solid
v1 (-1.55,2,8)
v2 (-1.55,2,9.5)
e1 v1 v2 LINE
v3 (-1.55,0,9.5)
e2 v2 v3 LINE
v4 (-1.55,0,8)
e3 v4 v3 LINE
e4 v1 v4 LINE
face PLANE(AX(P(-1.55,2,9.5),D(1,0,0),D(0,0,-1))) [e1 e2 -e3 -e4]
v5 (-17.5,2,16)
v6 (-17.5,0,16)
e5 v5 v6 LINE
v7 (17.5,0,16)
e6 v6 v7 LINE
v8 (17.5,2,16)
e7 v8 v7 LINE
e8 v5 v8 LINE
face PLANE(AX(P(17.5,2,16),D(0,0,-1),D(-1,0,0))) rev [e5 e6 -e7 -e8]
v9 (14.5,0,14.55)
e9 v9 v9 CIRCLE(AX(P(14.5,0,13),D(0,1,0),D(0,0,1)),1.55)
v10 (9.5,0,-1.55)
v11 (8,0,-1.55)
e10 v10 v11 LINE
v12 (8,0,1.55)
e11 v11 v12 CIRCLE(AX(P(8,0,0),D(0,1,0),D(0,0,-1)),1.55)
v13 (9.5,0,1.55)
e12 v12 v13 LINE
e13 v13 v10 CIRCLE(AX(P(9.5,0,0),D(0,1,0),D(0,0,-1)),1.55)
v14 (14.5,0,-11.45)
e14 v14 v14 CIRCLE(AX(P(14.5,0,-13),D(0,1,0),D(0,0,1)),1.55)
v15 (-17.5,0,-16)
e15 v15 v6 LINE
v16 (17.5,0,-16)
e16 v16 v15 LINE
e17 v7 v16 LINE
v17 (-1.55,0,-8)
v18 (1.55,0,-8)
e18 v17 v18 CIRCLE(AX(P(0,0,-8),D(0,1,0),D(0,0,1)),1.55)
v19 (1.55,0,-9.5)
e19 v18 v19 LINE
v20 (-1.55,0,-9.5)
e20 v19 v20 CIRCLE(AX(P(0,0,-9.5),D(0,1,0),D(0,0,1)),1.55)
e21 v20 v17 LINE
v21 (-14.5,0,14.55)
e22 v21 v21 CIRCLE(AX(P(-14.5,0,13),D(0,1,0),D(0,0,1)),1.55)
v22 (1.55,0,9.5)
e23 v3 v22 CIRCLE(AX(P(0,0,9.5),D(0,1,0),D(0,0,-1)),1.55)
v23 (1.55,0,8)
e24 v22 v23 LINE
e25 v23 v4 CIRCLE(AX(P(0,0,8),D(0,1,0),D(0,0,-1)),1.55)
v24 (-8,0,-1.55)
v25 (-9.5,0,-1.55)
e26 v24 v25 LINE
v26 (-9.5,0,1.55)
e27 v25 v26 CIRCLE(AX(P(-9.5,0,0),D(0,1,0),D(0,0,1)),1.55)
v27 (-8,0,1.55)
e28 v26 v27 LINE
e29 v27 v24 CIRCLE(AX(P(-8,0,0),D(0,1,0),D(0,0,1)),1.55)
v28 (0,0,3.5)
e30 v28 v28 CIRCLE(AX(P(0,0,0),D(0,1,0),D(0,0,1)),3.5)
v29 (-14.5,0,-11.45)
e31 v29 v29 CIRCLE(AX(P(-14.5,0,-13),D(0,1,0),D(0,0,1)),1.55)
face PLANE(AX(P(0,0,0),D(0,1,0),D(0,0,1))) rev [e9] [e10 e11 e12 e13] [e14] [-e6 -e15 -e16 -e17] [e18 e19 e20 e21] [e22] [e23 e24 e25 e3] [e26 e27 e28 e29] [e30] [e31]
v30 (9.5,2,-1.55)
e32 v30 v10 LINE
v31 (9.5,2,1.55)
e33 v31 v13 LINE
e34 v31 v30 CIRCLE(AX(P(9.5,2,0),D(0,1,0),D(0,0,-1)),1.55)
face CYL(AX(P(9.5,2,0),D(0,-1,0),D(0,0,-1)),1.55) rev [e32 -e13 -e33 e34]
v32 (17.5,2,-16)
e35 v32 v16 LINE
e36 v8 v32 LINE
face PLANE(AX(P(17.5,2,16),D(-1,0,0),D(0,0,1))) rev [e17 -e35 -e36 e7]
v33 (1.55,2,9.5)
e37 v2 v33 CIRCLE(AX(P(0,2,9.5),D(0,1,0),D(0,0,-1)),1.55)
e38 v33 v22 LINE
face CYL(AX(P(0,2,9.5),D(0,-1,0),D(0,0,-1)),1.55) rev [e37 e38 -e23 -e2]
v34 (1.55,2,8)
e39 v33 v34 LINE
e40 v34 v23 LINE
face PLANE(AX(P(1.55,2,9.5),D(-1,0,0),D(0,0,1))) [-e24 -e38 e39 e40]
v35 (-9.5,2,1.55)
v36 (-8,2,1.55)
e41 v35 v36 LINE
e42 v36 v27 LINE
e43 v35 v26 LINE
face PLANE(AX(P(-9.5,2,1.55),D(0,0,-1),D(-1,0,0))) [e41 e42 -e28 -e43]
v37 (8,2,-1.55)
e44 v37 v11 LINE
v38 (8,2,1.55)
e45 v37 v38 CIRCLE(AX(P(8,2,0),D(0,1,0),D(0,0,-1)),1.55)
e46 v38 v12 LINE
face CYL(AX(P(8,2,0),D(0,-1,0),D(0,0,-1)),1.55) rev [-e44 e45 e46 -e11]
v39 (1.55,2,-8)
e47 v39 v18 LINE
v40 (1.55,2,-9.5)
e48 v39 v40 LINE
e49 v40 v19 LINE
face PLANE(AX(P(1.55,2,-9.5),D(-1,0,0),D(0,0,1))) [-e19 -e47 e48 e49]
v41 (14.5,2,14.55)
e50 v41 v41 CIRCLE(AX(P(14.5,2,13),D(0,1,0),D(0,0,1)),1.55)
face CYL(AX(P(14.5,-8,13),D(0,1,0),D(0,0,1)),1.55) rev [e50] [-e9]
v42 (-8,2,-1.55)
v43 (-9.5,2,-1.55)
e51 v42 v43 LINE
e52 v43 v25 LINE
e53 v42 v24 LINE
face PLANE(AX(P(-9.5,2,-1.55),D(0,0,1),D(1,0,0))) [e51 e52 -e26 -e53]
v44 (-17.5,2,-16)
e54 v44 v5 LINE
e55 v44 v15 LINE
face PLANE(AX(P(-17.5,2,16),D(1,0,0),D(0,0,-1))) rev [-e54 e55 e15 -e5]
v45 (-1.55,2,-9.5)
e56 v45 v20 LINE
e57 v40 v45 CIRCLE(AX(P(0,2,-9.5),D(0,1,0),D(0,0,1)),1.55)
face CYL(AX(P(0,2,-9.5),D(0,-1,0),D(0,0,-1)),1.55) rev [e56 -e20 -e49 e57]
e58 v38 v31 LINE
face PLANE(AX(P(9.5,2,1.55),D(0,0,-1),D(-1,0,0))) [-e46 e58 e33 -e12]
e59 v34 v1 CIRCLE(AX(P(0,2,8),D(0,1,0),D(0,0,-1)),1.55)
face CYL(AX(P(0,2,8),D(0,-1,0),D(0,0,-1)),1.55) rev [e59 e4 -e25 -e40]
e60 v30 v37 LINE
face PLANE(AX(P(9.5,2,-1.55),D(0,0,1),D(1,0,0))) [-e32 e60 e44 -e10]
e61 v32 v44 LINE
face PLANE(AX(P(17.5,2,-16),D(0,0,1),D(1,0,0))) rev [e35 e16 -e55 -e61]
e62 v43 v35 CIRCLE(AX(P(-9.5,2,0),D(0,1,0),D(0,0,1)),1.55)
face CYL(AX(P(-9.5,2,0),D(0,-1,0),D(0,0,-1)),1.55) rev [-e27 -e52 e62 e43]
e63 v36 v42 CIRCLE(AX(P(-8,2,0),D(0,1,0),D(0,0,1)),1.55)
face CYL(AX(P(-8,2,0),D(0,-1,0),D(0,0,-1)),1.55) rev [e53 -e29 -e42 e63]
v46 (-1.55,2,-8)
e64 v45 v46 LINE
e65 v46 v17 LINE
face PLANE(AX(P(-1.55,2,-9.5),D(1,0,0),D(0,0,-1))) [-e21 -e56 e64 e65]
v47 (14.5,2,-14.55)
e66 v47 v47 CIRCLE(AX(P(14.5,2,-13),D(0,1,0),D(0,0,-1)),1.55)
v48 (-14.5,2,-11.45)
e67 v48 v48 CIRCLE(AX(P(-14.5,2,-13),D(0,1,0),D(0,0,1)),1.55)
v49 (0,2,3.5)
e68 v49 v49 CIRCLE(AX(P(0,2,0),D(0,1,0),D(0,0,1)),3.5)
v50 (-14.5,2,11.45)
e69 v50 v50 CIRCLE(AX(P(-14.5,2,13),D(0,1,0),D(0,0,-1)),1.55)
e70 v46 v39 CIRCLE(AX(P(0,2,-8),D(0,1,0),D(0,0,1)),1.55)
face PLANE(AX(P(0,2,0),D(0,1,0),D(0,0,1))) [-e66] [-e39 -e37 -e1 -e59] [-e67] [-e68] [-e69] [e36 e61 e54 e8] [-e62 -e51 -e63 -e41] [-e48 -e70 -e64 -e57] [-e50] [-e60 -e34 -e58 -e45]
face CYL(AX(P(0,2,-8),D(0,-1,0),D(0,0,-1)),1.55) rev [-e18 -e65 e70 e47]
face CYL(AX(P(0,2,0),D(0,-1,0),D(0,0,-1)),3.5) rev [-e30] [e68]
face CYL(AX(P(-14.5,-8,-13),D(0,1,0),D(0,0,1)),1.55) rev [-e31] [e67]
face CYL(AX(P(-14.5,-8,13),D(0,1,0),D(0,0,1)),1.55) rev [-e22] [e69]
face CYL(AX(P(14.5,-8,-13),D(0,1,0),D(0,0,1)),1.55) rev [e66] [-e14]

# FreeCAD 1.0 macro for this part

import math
import FreeCAD as App
import Part
import Sketcher

doc = App.newDocument("Part")
params = doc.addObject("Spreadsheet::Sheet", "Params")
for row, (alias, value) in enumerate([
    ("sketch1_diameter", "7 mm"),
    ("sketch1_width", "35 mm"),
    ("sketch1_height", "32 mm"),
    ("sketch1_radius", "1.55 mm"),
    ("sketch1_width2", "1.5 mm"),
    ("pad1_length", "2 mm"),
    ("sketch2_diameter", "3.1 mm"),
    ("pocket1_length", "10 mm"),
], start=1):
    params.set(f"A{row}", alias)
    params.set(f"B{row}", "=" + value)
    params.setAlias(f"B{row}", alias)

body = doc.addObject("PartDesign::Body", "Body")

sketch1 = body.newObject("Sketcher::SketchObject", "Sketch")
sketch1.AttachmentSupport = (doc.getObject("XZ_Plane"), [""])
sketch1.MapMode = "FlatFace"
sketch1.addGeometry([
    Part.LineSegment(App.Vector(-17.5, -16, 0), App.Vector(-17.5, 16, 0)),
    Part.LineSegment(App.Vector(-17.5, 16, 0), App.Vector(17.5, 16, 0)),
    Part.LineSegment(App.Vector(17.5, 16, 0), App.Vector(17.5, -16, 0)),
    Part.LineSegment(App.Vector(17.5, -16, 0), App.Vector(-17.5, -16, 0)),
    Part.LineSegment(App.Vector(1.6, 8, 0), App.Vector(1.6, 9.5, 0)),
    Part.ArcOfCircle(Part.Circle(App.Vector(0, 9.5, 0), App.Vector(0, 0, 1), 1.6), math.radians(0), math.radians(180)),
    Part.LineSegment(App.Vector(-1.6, 9.5, 0), App.Vector(-1.6, 8, 0)),
    Part.ArcOfCircle(Part.Circle(App.Vector(0, 8, 0), App.Vector(0, 0, 1), 1.6), math.radians(180), math.radians(360)),
    Part.LineSegment(App.Vector(-8, 1.6, 0), App.Vector(-9.5, 1.6, 0)),
    Part.ArcOfCircle(Part.Circle(App.Vector(-9.5, 0, 0), App.Vector(0, 0, 1), 1.6), math.radians(90), math.radians(270)),
    Part.LineSegment(App.Vector(-9.5, -1.6, 0), App.Vector(-8, -1.6, 0)),
    Part.ArcOfCircle(Part.Circle(App.Vector(-8, 0, 0), App.Vector(0, 0, 1), 1.6), math.radians(-90), math.radians(90)),
    Part.Circle(App.Vector(0, 0, 0), App.Vector(0, 0, 1), 3.5),
    Part.LineSegment(App.Vector(8, -1.6, 0), App.Vector(9.5, -1.6, 0)),
    Part.ArcOfCircle(Part.Circle(App.Vector(9.5, 0, 0), App.Vector(0, 0, 1), 1.6), math.radians(-90), math.radians(90)),
    Part.LineSegment(App.Vector(9.5, 1.6, 0), App.Vector(8, 1.6, 0)),
    Part.ArcOfCircle(Part.Circle(App.Vector(8, 0, 0), App.Vector(0, 0, 1), 1.6), math.radians(90), math.radians(270)),
    Part.LineSegment(App.Vector(-1.6, -8, 0), App.Vector(-1.6, -9.5, 0)),
    Part.ArcOfCircle(Part.Circle(App.Vector(0, -9.5, 0), App.Vector(0, 0, 1), 1.6), math.radians(180), math.radians(360)),
    Part.LineSegment(App.Vector(1.6, -9.5, 0), App.Vector(1.6, -8, 0)),
    Part.ArcOfCircle(Part.Circle(App.Vector(0, -8, 0), App.Vector(0, 0, 1), 1.6), math.radians(0), math.radians(180)),
], False)
sketch1.addConstraint([
    Sketcher.Constraint("Coincident", 0, 2, 1, 1),
    Sketcher.Constraint("Coincident", 1, 2, 2, 1),
    Sketcher.Constraint("Coincident", 2, 2, 3, 1),
    Sketcher.Constraint("Coincident", 3, 2, 0, 1),
    Sketcher.Constraint("Tangent", 4, 2, 5, 1),
    Sketcher.Constraint("Tangent", 5, 2, 6, 1),
    Sketcher.Constraint("Tangent", 6, 2, 7, 1),
    Sketcher.Constraint("Tangent", 7, 2, 4, 1),
    Sketcher.Constraint("Tangent", 8, 2, 9, 1),
    Sketcher.Constraint("Tangent", 9, 2, 10, 1),
    Sketcher.Constraint("Tangent", 10, 2, 11, 1),
    Sketcher.Constraint("Tangent", 11, 2, 8, 1),
    Sketcher.Constraint("Tangent", 13, 2, 14, 1),
    Sketcher.Constraint("Tangent", 14, 2, 15, 1),
    Sketcher.Constraint("Tangent", 15, 2, 16, 1),
    Sketcher.Constraint("Tangent", 16, 2, 13, 1),
    Sketcher.Constraint("Tangent", 17, 2, 18, 1),
    Sketcher.Constraint("Tangent", 18, 2, 19, 1),
    Sketcher.Constraint("Tangent", 19, 2, 20, 1),
    Sketcher.Constraint("Tangent", 20, 2, 17, 1),
    Sketcher.Constraint("Vertical", 0),
    Sketcher.Constraint("Horizontal", 1),
    Sketcher.Constraint("Vertical", 2),
    Sketcher.Constraint("Horizontal", 3),
    Sketcher.Constraint("Vertical", 4),
    Sketcher.Constraint("Vertical", 6),
    Sketcher.Constraint("Horizontal", 8),
    Sketcher.Constraint("Horizontal", 10),
    Sketcher.Constraint("Horizontal", 13),
    Sketcher.Constraint("Horizontal", 15),
    Sketcher.Constraint("Vertical", 17),
    Sketcher.Constraint("Vertical", 19),
    Sketcher.Constraint("Coincident", 12, 3, -1, 1),
    Sketcher.Constraint("Equal", 7, 9),
    Sketcher.Constraint("Equal", 11, 14),
    Sketcher.Constraint("Equal", 16, 18),
    Sketcher.Constraint("Symmetric", 9, 3, 14, 3, -1, 1),
    Sketcher.Constraint("Symmetric", 5, 3, 18, 3, -1, 1),
    Sketcher.Constraint("Symmetric", 0, 2, 2, 2, -1, 1),
    Sketcher.Constraint("Symmetric", 11, 3, 16, 3, -2),
    Sketcher.Constraint("Symmetric", 7, 3, 20, 3, -1),
    Sketcher.Constraint("Equal", 15, 4),
    Sketcher.Constraint("Diameter", 12, 7.0),
    Sketcher.Constraint("DistanceX", 1, 1, 1, 2, 35.0),
    Sketcher.Constraint("DistanceY", 0, 1, 0, 2, 32.0),
    Sketcher.Constraint("Radius", 5, 1.55),
    Sketcher.Constraint("DistanceX", 8, 2, 8, 1, 1.5),
    Sketcher.Constraint("DistanceY", -1, 1, 7, 3, 8.0),
    Sketcher.Constraint("DistanceX", 11, 3, -1, 1, 8.0),
])
sketch1.setExpression("Constraints[42]", "Params.sketch1_diameter")
sketch1.setExpression("Constraints[43]", "Params.sketch1_width")
sketch1.setExpression("Constraints[44]", "Params.sketch1_height")
sketch1.setExpression("Constraints[45]", "Params.sketch1_radius")
sketch1.setExpression("Constraints[46]", "Params.sketch1_width2")
pad1 = body.newObject("PartDesign::Pad", "Pad")
pad1.Profile = sketch1
pad1.setExpression("Length", "Params.pad1_length")
pad1.Reversed = True

sketch2 = body.newObject("Sketcher::SketchObject", "Sketch001")
sketch2.AttachmentSupport = (doc.getObject("XZ_Plane"), [""])
sketch2.MapMode = "FlatFace"
sketch2.AttachmentOffset = App.Placement(App.Vector(0, 0, -2), App.Rotation())
sketch2.addGeometry([
    Part.Circle(App.Vector(-14.5, -13, 0), App.Vector(0, 0, 1), 1.6),
    Part.Circle(App.Vector(-14.5, 13, 0), App.Vector(0, 0, 1), 1.6),
    Part.Circle(App.Vector(14.5, 13, 0), App.Vector(0, 0, 1), 1.6),
    Part.Circle(App.Vector(14.5, -13, 0), App.Vector(0, 0, 1), 1.6),
], False)
sketch2.addConstraint([
    Sketcher.Constraint("Equal", 0, 1),
    Sketcher.Constraint("Equal", 1, 2),
    Sketcher.Constraint("Equal", 2, 3),
    Sketcher.Constraint("Symmetric", 0, 3, 2, 3, -1, 1),
    Sketcher.Constraint("Symmetric", 1, 3, 3, 3, -1, 1),
    Sketcher.Constraint("Symmetric", 1, 3, 2, 3, -2),
    Sketcher.Constraint("Diameter", 0, 3.1),
    Sketcher.Constraint("DistanceY", 0, 3, -1, 1, 13.0),
    Sketcher.Constraint("DistanceX", 1, 3, 2, 3, 29.0),
])
sketch2.setExpression("Constraints[6]", "Params.sketch2_diameter")
pocket1 = body.newObject("PartDesign::Pocket", "Pocket")
pocket1.Profile = sketch2
pocket1.setExpression("Length", "Params.pocket1_length")
pocket1.Reversed = True

doc.recompute()
